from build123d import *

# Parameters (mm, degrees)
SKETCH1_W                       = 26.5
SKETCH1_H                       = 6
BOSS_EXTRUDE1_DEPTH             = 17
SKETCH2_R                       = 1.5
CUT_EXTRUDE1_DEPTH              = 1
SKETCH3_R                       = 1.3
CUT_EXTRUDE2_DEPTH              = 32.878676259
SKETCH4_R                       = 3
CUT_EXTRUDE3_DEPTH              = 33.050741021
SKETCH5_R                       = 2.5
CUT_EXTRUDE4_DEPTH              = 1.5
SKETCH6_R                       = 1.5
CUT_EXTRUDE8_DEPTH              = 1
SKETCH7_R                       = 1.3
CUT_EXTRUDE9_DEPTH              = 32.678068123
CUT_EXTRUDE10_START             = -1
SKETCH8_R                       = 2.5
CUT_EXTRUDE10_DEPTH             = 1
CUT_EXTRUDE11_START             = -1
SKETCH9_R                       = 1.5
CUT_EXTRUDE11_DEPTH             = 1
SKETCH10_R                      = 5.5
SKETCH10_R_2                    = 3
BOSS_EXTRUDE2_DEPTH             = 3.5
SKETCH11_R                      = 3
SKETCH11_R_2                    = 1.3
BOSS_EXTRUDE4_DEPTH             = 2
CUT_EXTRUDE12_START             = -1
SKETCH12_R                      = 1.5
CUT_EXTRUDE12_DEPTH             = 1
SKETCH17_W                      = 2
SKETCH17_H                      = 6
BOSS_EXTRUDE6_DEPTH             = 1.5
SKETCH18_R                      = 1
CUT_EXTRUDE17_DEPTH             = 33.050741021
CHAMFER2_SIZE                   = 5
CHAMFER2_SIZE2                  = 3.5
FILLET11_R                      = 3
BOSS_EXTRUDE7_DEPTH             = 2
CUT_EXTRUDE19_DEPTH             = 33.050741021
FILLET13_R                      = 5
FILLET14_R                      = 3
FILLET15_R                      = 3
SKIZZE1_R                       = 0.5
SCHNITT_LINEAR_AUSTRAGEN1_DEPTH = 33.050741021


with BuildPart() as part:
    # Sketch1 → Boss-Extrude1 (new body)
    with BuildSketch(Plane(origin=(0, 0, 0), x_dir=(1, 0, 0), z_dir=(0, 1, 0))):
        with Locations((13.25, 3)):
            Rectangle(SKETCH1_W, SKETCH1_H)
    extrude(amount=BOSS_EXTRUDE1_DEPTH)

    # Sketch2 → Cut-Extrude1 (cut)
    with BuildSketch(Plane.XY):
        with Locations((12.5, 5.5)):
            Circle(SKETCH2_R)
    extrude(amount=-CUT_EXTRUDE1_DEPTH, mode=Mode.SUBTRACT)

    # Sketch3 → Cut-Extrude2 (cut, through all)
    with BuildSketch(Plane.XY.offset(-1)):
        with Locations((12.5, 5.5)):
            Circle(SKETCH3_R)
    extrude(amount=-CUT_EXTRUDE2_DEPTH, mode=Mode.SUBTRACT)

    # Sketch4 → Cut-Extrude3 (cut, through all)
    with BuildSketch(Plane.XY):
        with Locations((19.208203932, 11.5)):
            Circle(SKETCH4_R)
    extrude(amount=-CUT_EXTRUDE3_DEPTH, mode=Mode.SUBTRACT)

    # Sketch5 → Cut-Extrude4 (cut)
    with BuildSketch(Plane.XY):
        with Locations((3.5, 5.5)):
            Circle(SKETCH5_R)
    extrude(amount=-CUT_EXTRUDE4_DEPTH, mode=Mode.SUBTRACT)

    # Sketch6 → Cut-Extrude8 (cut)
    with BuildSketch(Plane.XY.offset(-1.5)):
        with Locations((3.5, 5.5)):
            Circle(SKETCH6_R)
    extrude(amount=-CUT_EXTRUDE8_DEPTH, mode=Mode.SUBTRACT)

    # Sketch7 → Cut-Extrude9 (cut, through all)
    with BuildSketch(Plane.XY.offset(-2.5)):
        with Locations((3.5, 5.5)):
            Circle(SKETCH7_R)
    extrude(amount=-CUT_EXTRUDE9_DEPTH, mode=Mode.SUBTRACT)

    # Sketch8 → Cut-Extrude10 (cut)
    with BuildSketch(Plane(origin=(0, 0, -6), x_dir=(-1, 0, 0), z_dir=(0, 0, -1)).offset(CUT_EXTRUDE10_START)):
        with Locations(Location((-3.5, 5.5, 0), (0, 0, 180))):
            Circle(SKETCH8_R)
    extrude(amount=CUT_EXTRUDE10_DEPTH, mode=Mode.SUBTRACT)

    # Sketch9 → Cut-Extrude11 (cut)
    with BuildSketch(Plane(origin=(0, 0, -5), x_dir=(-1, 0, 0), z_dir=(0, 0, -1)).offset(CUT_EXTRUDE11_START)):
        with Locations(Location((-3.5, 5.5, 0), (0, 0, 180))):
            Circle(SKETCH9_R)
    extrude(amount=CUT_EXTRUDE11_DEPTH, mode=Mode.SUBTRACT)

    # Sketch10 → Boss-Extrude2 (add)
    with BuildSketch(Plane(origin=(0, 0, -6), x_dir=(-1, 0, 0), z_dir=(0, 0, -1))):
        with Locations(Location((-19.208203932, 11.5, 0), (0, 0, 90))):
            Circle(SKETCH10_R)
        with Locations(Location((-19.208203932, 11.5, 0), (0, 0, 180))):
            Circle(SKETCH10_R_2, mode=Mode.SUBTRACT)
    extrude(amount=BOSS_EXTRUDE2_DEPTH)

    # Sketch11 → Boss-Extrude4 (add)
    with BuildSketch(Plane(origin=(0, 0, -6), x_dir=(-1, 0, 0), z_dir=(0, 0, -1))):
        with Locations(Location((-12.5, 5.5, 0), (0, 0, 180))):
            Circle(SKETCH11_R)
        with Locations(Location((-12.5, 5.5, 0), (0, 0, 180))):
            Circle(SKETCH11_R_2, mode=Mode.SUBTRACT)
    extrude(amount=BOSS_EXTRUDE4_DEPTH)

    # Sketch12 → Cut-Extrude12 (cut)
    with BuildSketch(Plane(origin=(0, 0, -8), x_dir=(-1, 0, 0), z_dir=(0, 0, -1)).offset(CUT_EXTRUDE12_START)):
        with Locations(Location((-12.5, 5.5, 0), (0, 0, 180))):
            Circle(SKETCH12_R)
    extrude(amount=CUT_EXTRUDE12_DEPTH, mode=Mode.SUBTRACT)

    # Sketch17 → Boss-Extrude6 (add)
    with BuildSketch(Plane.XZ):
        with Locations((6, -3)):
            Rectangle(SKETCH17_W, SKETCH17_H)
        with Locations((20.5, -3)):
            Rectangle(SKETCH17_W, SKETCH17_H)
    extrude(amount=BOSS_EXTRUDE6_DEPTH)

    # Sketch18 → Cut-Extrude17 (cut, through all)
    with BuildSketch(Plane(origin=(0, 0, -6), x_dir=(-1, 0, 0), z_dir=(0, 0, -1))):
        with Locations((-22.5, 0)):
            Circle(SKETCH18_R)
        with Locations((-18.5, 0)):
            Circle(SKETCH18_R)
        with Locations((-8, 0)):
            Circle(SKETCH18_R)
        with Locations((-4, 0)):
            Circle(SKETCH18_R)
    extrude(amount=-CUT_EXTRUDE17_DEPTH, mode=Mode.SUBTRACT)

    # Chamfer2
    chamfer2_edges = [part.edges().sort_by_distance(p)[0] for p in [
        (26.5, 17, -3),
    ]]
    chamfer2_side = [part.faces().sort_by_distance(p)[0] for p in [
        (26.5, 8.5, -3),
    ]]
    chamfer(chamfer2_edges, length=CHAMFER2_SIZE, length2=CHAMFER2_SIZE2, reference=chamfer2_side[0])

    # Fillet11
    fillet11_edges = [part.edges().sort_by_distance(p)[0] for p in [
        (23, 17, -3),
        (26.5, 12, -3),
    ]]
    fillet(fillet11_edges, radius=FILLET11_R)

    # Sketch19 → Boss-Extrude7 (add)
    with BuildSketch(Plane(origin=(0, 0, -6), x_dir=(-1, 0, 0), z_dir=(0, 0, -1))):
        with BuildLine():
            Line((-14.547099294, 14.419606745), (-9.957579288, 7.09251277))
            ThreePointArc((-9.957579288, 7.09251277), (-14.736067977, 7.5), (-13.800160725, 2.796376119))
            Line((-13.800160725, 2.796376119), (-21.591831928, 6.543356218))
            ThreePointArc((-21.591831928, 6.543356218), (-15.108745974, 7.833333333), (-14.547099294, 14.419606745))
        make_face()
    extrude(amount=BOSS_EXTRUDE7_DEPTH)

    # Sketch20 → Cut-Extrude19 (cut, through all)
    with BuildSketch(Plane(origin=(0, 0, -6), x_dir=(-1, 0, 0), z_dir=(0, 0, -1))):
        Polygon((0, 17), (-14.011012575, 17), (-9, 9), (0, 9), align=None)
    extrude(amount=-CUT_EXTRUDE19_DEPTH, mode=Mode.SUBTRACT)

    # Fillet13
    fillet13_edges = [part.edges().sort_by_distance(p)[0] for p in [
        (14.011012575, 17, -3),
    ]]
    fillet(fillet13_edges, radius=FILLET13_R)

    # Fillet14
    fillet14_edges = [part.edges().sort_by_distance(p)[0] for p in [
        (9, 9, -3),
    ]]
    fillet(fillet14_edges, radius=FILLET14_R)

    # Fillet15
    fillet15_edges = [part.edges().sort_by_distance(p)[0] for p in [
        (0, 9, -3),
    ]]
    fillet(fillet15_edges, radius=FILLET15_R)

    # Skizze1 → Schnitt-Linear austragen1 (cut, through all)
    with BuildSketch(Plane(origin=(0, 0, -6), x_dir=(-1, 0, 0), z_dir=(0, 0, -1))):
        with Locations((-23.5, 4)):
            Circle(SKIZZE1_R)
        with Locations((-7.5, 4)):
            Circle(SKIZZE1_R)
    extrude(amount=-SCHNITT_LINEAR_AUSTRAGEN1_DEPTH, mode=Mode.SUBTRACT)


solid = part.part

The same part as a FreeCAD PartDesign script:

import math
import FreeCAD as App
import Part
import Sketcher
from FreeCAD import Vector


def edges_at(feature, points):
    """Names of the edges that pass closest to the given points."""
    edges = feature.Shape.Edges
    near = lambda p: min(range(len(edges)), key=lambda i: edges[i].distToShape(Part.Vertex(*p))[0])
    return sorted({f"Edge{near(p) + 1}" for p in points})


def add_polygon(sketch, points):
    """Adds a closed chain of lines whose ends are joined by coincident constraints."""
    first, n = sketch.GeometryCount, len(points)
    for a, b in zip(points, points[1:] + points[:1]):
        sketch.addGeometry(Part.LineSegment(App.Vector(*a, 0), App.Vector(*b, 0)), False)
    for i in range(n):
        sketch.addConstraint(Sketcher.Constraint("Coincident", first + i, 2, first + (i + 1) % n, 1))

doc = App.newDocument("Part")
params = doc.addObject("Spreadsheet::Sheet", "Params")
for row, (alias, value) in enumerate([
    ("sketch1_height", "6 mm"),
    ("sketch1_width", "26.5 mm"),
    ("pad1_length", "17 mm"),
    ("sketch2_diameter", "3 mm"),
    ("pocket1_length", "1 mm"),
    ("sketch3_diameter", "2.6 mm"),
    ("sketch4_diameter", "6 mm"),
    ("sketch5_diameter", "5 mm"),
    ("pocket4_length", "1.5 mm"),
    ("sketch6_diameter", "3 mm"),
    ("pocket5_length", "1 mm"),
    ("sketch7_diameter", "2.6 mm"),
    ("sketch8_diameter", "5 mm"),
    ("pocket7_length", "1 mm"),
    ("sketch9_diameter", "3 mm"),
    ("pocket8_length", "1 mm"),
    ("sketch10_diameter", "11 mm"),
    ("sketch10_diameter2", "6 mm"),
    ("pad2_length", "3.5 mm"),
    ("sketch11_diameter", "6 mm"),
    ("sketch11_diameter2", "2.6 mm"),
    ("pad3_length", "2 mm"),
    ("sketch12_diameter", "3 mm"),
    ("pocket9_length", "1 mm"),
    ("sketch13_width", "2 mm"),
    ("sketch13_height", "6 mm"),
    ("pad4_length", "1.5 mm"),
    ("sketch14_diameter", "2 mm"),
    ("chamfer_size", "5 mm"),
    ("chamfer_size2", "3.5 mm"),
    ("fillet_radius", "3 mm"),
    ("sketch15_radius", "3 mm"),
    ("sketch15_radius2", "5.5 mm"),
    ("pad5_length", "2 mm"),
    ("sketch16_width", "9 mm"),
    ("sketch16_height", "8 mm"),
    ("fillet2_radius", "5 mm"),
    ("fillet3_radius", "3 mm"),
    ("fillet4_radius", "3 mm"),
    ("sketch17_diameter", "1 mm"),
], start=1):
    params.set(f"A{row}", alias)
    params.set(f"B{row}", "=" + value)
    params.setAlias(f"B{row}", alias)

body = doc.addObject("PartDesign::Body", "Body")

# Sketch on XZ plane
sketch1 = body.newObject("Sketcher::SketchObject", "Sketch")
sketch1.AttachmentSupport = (doc.getObject("XZ_Plane"), [""])
sketch1.MapMode = "FlatFace"
add_polygon(sketch1, [(0, -6), (0, 0), (26.5, 0), (26.5, -6)])  # lines 0-3
sketch1.addConstraint([
    Sketcher.Constraint("Vertical", 0),
    Sketcher.Constraint("Horizontal", 1),
    Sketcher.Constraint("Vertical", 2),
    Sketcher.Constraint("Horizontal", 3),
    Sketcher.Constraint("Coincident", 0, 2, -1, 1),
    Sketcher.Constraint("DistanceY", 0, 1, 0, 2, 6.0),
    Sketcher.Constraint("DistanceX", 1, 1, 1, 2, 26.5),
])
sketch1.setExpression("Constraints[9]", "Params.sketch1_height")
sketch1.setExpression("Constraints[10]", "Params.sketch1_width")
pad1 = body.newObject("PartDesign::Pad", "Pad")
pad1.Profile = sketch1
pad1.setExpression("Length", "Params.pad1_length")
pad1.Reversed = True

# Sketch on XY plane
sketch2 = body.newObject("Sketcher::SketchObject", "Sketch001")
sketch2.AttachmentSupport = (doc.getObject("XY_Plane"), [""])
sketch2.MapMode = "FlatFace"
sketch2.addGeometry(Part.Circle(Vector(12.5, 5.5, 0), Vector(0, 0, 1), 1.5), False)
sketch2.addConstraint([
    Sketcher.Constraint("Diameter", 0, 3.0),
    Sketcher.Constraint("DistanceX", -1, 1, 0, 3, 12.5),
    Sketcher.Constraint("DistanceY", -1, 1, 0, 3, 5.5),
])
sketch2.setExpression("Constraints[0]", "Params.sketch2_diameter")
pocket1 = body.newObject("PartDesign::Pocket", "Pocket")
pocket1.Profile = sketch2
pocket1.setExpression("Length", "Params.pocket1_length")

# Sketch on XY plane
sketch3 = body.newObject("Sketcher::SketchObject", "Sketch002")
sketch3.AttachmentSupport = (doc.getObject("XY_Plane"), [""])
sketch3.MapMode = "FlatFace"
sketch3.AttachmentOffset = App.Placement(Vector(0, 0, -1), App.Rotation())
sketch3.addGeometry(Part.Circle(Vector(12.5, 5.5, 0), Vector(0, 0, 1), 1.3), False)
sketch3.addConstraint([
    Sketcher.Constraint("Diameter", 0, 2.6),
    Sketcher.Constraint("DistanceX", -1, 1, 0, 3, 12.5),
    Sketcher.Constraint("DistanceY", -1, 1, 0, 3, 5.5),
])
sketch3.setExpression("Constraints[0]", "Params.sketch3_diameter")
pocket2 = body.newObject("PartDesign::Pocket", "Pocket001")
pocket2.Profile = sketch3
pocket2.Type = "ThroughAll"

# Sketch on XY plane
sketch4 = body.newObject("Sketcher::SketchObject", "Sketch003")
sketch4.AttachmentSupport = (doc.getObject("XY_Plane"), [""])
sketch4.MapMode = "FlatFace"
sketch4.addGeometry(Part.Circle(Vector(19.208204, 11.5, 0), Vector(0, 0, 1), 3), False)
sketch4.addConstraint([
    Sketcher.Constraint("Diameter", 0, 6.0),
    Sketcher.Constraint("DistanceY", -1, 1, 0, 3, 11.5),
    Sketcher.Constraint("DistanceX", -1, 1, 0, 3, 19.208204),
])
sketch4.setExpression("Constraints[0]", "Params.sketch4_diameter")
pocket3 = body.newObject("PartDesign::Pocket", "Pocket002")
pocket3.Profile = sketch4
pocket3.Type = "ThroughAll"

# Sketch on XY plane
sketch5 = body.newObject("Sketcher::SketchObject", "Sketch004")
sketch5.AttachmentSupport = (doc.getObject("XY_Plane"), [""])
sketch5.MapMode = "FlatFace"
sketch5.addGeometry(Part.Circle(Vector(3.5, 5.5, 0), Vector(0, 0, 1), 2.5), False)
sketch5.addConstraint([
    Sketcher.Constraint("Diameter", 0, 5.0),
    Sketcher.Constraint("DistanceX", -1, 1, 0, 3, 3.5),
    Sketcher.Constraint("DistanceY", -1, 1, 0, 3, 5.5),
])
sketch5.setExpression("Constraints[0]", "Params.sketch5_diameter")
pocket4 = body.newObject("PartDesign::Pocket", "Pocket003")
pocket4.Profile = sketch5
pocket4.setExpression("Length", "Params.pocket4_length")

# Sketch on XY plane
sketch6 = body.newObject("Sketcher::SketchObject", "Sketch005")
sketch6.AttachmentSupport = (doc.getObject("XY_Plane"), [""])
sketch6.MapMode = "FlatFace"
sketch6.AttachmentOffset = App.Placement(Vector(0, 0, -1.5), App.Rotation())
sketch6.addGeometry(Part.Circle(Vector(3.5, 5.5, 0), Vector(0, 0, 1), 1.5), False)
sketch6.addConstraint([
    Sketcher.Constraint("Diameter", 0, 3.0),
    Sketcher.Constraint("DistanceX", -1, 1, 0, 3, 3.5),
    Sketcher.Constraint("DistanceY", -1, 1, 0, 3, 5.5),
])
sketch6.setExpression("Constraints[0]", "Params.sketch6_diameter")
pocket5 = body.newObject("PartDesign::Pocket", "Pocket004")
pocket5.Profile = sketch6
pocket5.setExpression("Length", "Params.pocket5_length")

# Sketch on XY plane
sketch7 = body.newObject("Sketcher::SketchObject", "Sketch006")
sketch7.AttachmentSupport = (doc.getObject("XY_Plane"), [""])
sketch7.MapMode = "FlatFace"
sketch7.AttachmentOffset = App.Placement(Vector(0, 0, -2.5), App.Rotation())
sketch7.addGeometry(Part.Circle(Vector(3.5, 5.5, 0), Vector(0, 0, 1), 1.3), False)
sketch7.addConstraint([
    Sketcher.Constraint("Diameter", 0, 2.6),
    Sketcher.Constraint("DistanceX", -1, 1, 0, 3, 3.5),
    Sketcher.Constraint("DistanceY", -1, 1, 0, 3, 5.5),
])
sketch7.setExpression("Constraints[0]", "Params.sketch7_diameter")
pocket6 = body.newObject("PartDesign::Pocket", "Pocket005")
pocket6.Profile = sketch7
pocket6.Type = "ThroughAll"

# Sketch on XY plane
sketch8 = body.newObject("Sketcher::SketchObject", "Sketch007")
sketch8.AttachmentSupport = (doc.getObject("XY_Plane"), [""])
sketch8.MapMode = "FlatFace"
sketch8.AttachmentOffset = App.Placement(Vector(0, 0, -5), App.Rotation())
sketch8.addGeometry(Part.Circle(Vector(3.5, 5.5, 0), Vector(0, 0, 1), 2.5), False)
sketch8.addConstraint([
    Sketcher.Constraint("Diameter", 0, 5.0),
    Sketcher.Constraint("DistanceX", -1, 1, 0, 3, 3.5),
    Sketcher.Constraint("DistanceY", -1, 1, 0, 3, 5.5),
])
sketch8.setExpression("Constraints[0]", "Params.sketch8_diameter")
pocket7 = body.newObject("PartDesign::Pocket", "Pocket006")
pocket7.Profile = sketch8
pocket7.setExpression("Length", "Params.pocket7_length")

# Sketch on XY plane
sketch9 = body.newObject("Sketcher::SketchObject", "Sketch008")
sketch9.AttachmentSupport = (doc.getObject("XY_Plane"), [""])
sketch9.MapMode = "FlatFace"
sketch9.AttachmentOffset = App.Placement(Vector(0, 0, -4), App.Rotation())
sketch9.addGeometry(Part.Circle(Vector(3.5, 5.5, 0), Vector(0, 0, 1), 1.5), False)
sketch9.addConstraint([
    Sketcher.Constraint("Diameter", 0, 3.0),
    Sketcher.Constraint("DistanceX", -1, 1, 0, 3, 3.5),
    Sketcher.Constraint("DistanceY", -1, 1, 0, 3, 5.5),
])
sketch9.setExpression("Constraints[0]", "Params.sketch9_diameter")
pocket8 = body.newObject("PartDesign::Pocket", "Pocket007")
pocket8.Profile = sketch9
pocket8.setExpression("Length", "Params.pocket8_length")

# Sketch on XY plane
sketch10 = body.newObject("Sketcher::SketchObject", "Sketch009")
sketch10.AttachmentSupport = (doc.getObject("XY_Plane"), [""])
sketch10.MapMode = "FlatFace"
sketch10.AttachmentOffset = App.Placement(Vector(0, 0, -6), App.Rotation())
sketch10.addGeometry([
    Part.Circle(Vector(19.208204, 11.5, 0), Vector(0, 0, 1), 5.5),
    Part.Circle(Vector(19.208204, 11.5, 0), Vector(0, 0, 1), 3),
], False)
sketch10.addConstraint([
    Sketcher.Constraint("Coincident", 1, 3, 0, 3),
    Sketcher.Constraint("Diameter", 0, 11.0),
    Sketcher.Constraint("Diameter", 1, 6.0),
    Sketcher.Constraint("DistanceY", -1, 1, 0, 3, 11.5),
    Sketcher.Constraint("DistanceX", -1, 1, 0, 3, 19.208204),
])
sketch10.setExpression("Constraints[1]", "Params.sketch10_diameter")
sketch10.setExpression("Constraints[2]", "Params.sketch10_diameter2")
pad2 = body.newObject("PartDesign::Pad", "Pad001")
pad2.Profile = sketch10
pad2.setExpression("Length", "Params.pad2_length")
pad2.Reversed = True

# Sketch on XY plane
sketch11 = body.newObject("Sketcher::SketchObject", "Sketch010")
sketch11.AttachmentSupport = (doc.getObject("XY_Plane"), [""])
sketch11.MapMode = "FlatFace"
sketch11.AttachmentOffset = App.Placement(Vector(0, 0, -6), App.Rotation())
sketch11.addGeometry([
    Part.Circle(Vector(12.5, 5.5, 0), Vector(0, 0, 1), 3),
    Part.Circle(Vector(12.5, 5.5, 0), Vector(0, 0, 1), 1.3),
], False)
sketch11.addConstraint([
    Sketcher.Constraint("Coincident", 1, 3, 0, 3),
    Sketcher.Constraint("Diameter", 0, 6.0),
    Sketcher.Constraint("Diameter", 1, 2.6),
    Sketcher.Constraint("DistanceX", -1, 1, 0, 3, 12.5),
    Sketcher.Constraint("DistanceY", -1, 1, 0, 3, 5.5),
])
sketch11.setExpression("Constraints[1]", "Params.sketch11_diameter")
sketch11.setExpression("Constraints[2]", "Params.sketch11_diameter2")
pad3 = body.newObject("PartDesign::Pad", "Pad002")
pad3.Profile = sketch11
pad3.setExpression("Length", "Params.pad3_length")
pad3.Reversed = True

# Sketch on XY plane
sketch12 = body.newObject("Sketcher::SketchObject", "Sketch011")
sketch12.AttachmentSupport = (doc.getObject("XY_Plane"), [""])
sketch12.MapMode = "FlatFace"
sketch12.AttachmentOffset = App.Placement(Vector(0, 0, -7), App.Rotation())
sketch12.addGeometry(Part.Circle(Vector(12.5, 5.5, 0), Vector(0, 0, 1), 1.5), False)
sketch12.addConstraint([
    Sketcher.Constraint("Diameter", 0, 3.0),
    Sketcher.Constraint("DistanceX", -1, 1, 0, 3, 12.5),
    Sketcher.Constraint("DistanceY", -1, 1, 0, 3, 5.5),
])
sketch12.setExpression("Constraints[0]", "Params.sketch12_diameter")
pocket9 = body.newObject("PartDesign::Pocket", "Pocket008")
pocket9.Profile = sketch12
pocket9.setExpression("Length", "Params.pocket9_length")

# Sketch on XZ plane
sketch13 = body.newObject("Sketcher::SketchObject", "Sketch012")
sketch13.AttachmentSupport = (doc.getObject("XZ_Plane"), [""])
sketch13.MapMode = "FlatFace"
add_polygon(sketch13, [(5, 0), (5, -6), (7, -6), (7, 0)])  # lines 0-3
add_polygon(sketch13, [(19.5, 0), (19.5, -6), (21.5, -6), (21.5, 0)])  # lines 4-7
sketch13.addConstraint([
    Sketcher.Constraint("Vertical", 0),
    Sketcher.Constraint("Horizontal", 1),
    Sketcher.Constraint("Vertical", 2),
    Sketcher.Constraint("Horizontal", 3),
    Sketcher.Constraint("Vertical", 4),
    Sketcher.Constraint("Horizontal", 5),
    Sketcher.Constraint("Vertical", 6),
    Sketcher.Constraint("Horizontal", 7),
    Sketcher.Constraint("PointOnObject", 2, 2, -1),
    Sketcher.Constraint("PointOnObject", 6, 2, -1),
    Sketcher.Constraint("Horizontal", 1, 2, 4, 2),
    Sketcher.Constraint("Equal", 3, 5),
    Sketcher.Constraint("DistanceX", 1, 1, 1, 2, 2.0),
    Sketcher.Constraint("DistanceY", 0, 2, 0, 1, 6.0),
    Sketcher.Constraint("DistanceX", -1, 1, 0, 2, 5.0),
    Sketcher.Constraint("DistanceX", -1, 1, 4, 2, 19.5),
])
sketch13.setExpression("Constraints[20]", "Params.sketch13_width")
sketch13.setExpression("Constraints[21]", "Params.sketch13_height")
pad4 = body.newObject("PartDesign::Pad", "Pad003")
pad4.Profile = sketch13
pad4.setExpression("Length", "Params.pad4_length")

# Sketch on XY plane
sketch14 = body.newObject("Sketcher::SketchObject", "Sketch013")
sketch14.AttachmentSupport = (doc.getObject("XY_Plane"), [""])
sketch14.MapMode = "FlatFace"
sketch14.AttachmentOffset = App.Placement(Vector(0, 0, -6), App.Rotation())
sketch14.addGeometry([
    Part.Circle(Vector(22.5, 0, 0), Vector(0, 0, 1), 1),
    Part.Circle(Vector(18.5, 0, 0), Vector(0, 0, 1), 1),
    Part.Circle(Vector(8, 0, 0), Vector(0, 0, 1), 1),
    Part.Circle(Vector(4, 0, 0), Vector(0, 0, 1), 1),
], False)
sketch14.addConstraint([
    Sketcher.Constraint("Equal", 0, 1),
    Sketcher.Constraint("Equal", 1, 2),
    Sketcher.Constraint("Equal", 2, 3),
    Sketcher.Constraint("PointOnObject", 0, 3, -1),
    Sketcher.Constraint("PointOnObject", 1, 3, -1),
    Sketcher.Constraint("PointOnObject", 2, 3, -1),
    Sketcher.Constraint("PointOnObject", 3, 3, -1),
    Sketcher.Constraint("Diameter", 0, 2.0),
    Sketcher.Constraint("DistanceX", -1, 1, 2, 3, 8.0),
    Sketcher.Constraint("DistanceX", -1, 1, 3, 3, 4.0),
    Sketcher.Constraint("DistanceX", 1, 3, 0, 3, 4.0),
    Sketcher.Constraint("DistanceX", -1, 1, 0, 3, 22.5),
])
sketch14.setExpression("Constraints[7]", "Params.sketch14_diameter")
pocket10 = body.newObject("PartDesign::Pocket", "Pocket009")
pocket10.Profile = sketch14
pocket10.Type = "ThroughAll"
pocket10.Reversed = True
doc.recompute()

chamfer = body.newObject("PartDesign::Chamfer", "Chamfer")
chamfer.Base = (pocket10, edges_at(pocket10, [(26.5, 17, -3)]))
chamfer.ChamferType = "Two distances"
chamfer.setExpression("Size", "Params.chamfer_size")
chamfer.setExpression("Size2", "Params.chamfer_size2")
doc.recompute()

fillet = body.newObject("PartDesign::Fillet", "Fillet")
fillet.Base = (chamfer, edges_at(chamfer, [(23, 17, -3), (26.5, 12, -3)]))
fillet.setExpression("Radius", "Params.fillet_radius")

# Sketch on XY plane
sketch15 = body.newObject("Sketcher::SketchObject", "Sketch014")
sketch15.AttachmentSupport = (doc.getObject("XY_Plane"), [""])
sketch15.MapMode = "FlatFace"
sketch15.AttachmentOffset = App.Placement(Vector(0, 0, -6), App.Rotation())
sketch15.addGeometry([
    Part.LineSegment(Vector(9.957579, 7.092513, 0), Vector(14.547099, 14.419607, 0)),
    Part.ArcOfCircle(Part.Circle(Vector(19.208204, 11.5, 0), Vector(0, 0, 1), 5.5), math.radians(147.937935), math.radians(295.682695)),
    Part.LineSegment(Vector(21.591832, 6.543356, 0), Vector(13.800161, 2.796376, 0)),
    Part.ArcOfCircle(Part.Circle(Vector(12.5, 5.5, 0), Vector(0, 0, 1), 3), math.radians(-64.317305), math.radians(147.937935)),
], False)
sketch15.addConstraint([
    Sketcher.Constraint("Tangent", 0, 2, 1, 1),
    Sketcher.Constraint("Tangent", 1, 2, 2, 1),
    Sketcher.Constraint("Tangent", 2, 2, 3, 1),
    Sketcher.Constraint("Tangent", 3, 2, 0, 1),
    Sketcher.Constraint("Radius", 3, 3.0),
    Sketcher.Constraint("Radius", 1, 5.5),
    Sketcher.Constraint("DistanceY", 3, 3, 1, 3, 6.0),
    Sketcher.Constraint("DistanceY", -1, 1, 1, 3, 11.5),
    Sketcher.Constraint("DistanceX", -1, 1, 3, 3, 12.5),
    Sketcher.Constraint("DistanceX", -1, 1, 0, 2, 14.547099),
])
sketch15.setExpression("Constraints[4]", "Params.sketch15_radius")
sketch15.setExpression("Constraints[5]", "Params.sketch15_radius2")
pad5 = body.newObject("PartDesign::Pad", "Pad004")
pad5.Profile = sketch15
pad5.setExpression("Length", "Params.pad5_length")
pad5.Reversed = True

# Sketch on XY plane
sketch16 = body.newObject("Sketcher::SketchObject", "Sketch015")
sketch16.AttachmentSupport = (doc.getObject("XY_Plane"), [""])
sketch16.MapMode = "FlatFace"
sketch16.AttachmentOffset = App.Placement(Vector(0, 0, -6), App.Rotation())
add_polygon(sketch16, [(0, 17), (14.011013, 17), (9, 9), (0, 9)])  # lines 0-3
sketch16.addConstraint([
    Sketcher.Constraint("Horizontal", 0),
    Sketcher.Constraint("Horizontal", 2),
    Sketcher.Constraint("Vertical", 3),
    Sketcher.Constraint("PointOnObject", 2, 2, -2),
    Sketcher.Constraint("DistanceX", 2, 2, 2, 1, 9.0),
    Sketcher.Constraint("DistanceY", 3, 1, 3, 2, 8.0),
    Sketcher.Constraint("DistanceY", -1, 1, 0, 2, 17.0),
    Sketcher.Constraint("DistanceX", 0, 1, 0, 2, 14.011013),
])
sketch16.setExpression("Constraints[8]", "Params.sketch16_width")
sketch16.setExpression("Constraints[9]", "Params.sketch16_height")
pocket11 = body.newObject("PartDesign::Pocket", "Pocket010")
pocket11.Profile = sketch16
pocket11.Type = "ThroughAll"
pocket11.Reversed = True
doc.recompute()

fillet2 = body.newObject("PartDesign::Fillet", "Fillet001")
fillet2.Base = (pocket11, edges_at(pocket11, [(14.011, 17, -3)]))
fillet2.setExpression("Radius", "Params.fillet2_radius")
doc.recompute()

fillet3 = body.newObject("PartDesign::Fillet", "Fillet002")
fillet3.Base = (fillet2, edges_at(fillet2, [(9, 9, -3)]))
fillet3.setExpression("Radius", "Params.fillet3_radius")
doc.recompute()

fillet4 = body.newObject("PartDesign::Fillet", "Fillet003")
fillet4.Base = (fillet3, edges_at(fillet3, [(0, 9, -3)]))
fillet4.setExpression("Radius", "Params.fillet4_radius")

# Sketch on XY plane
sketch17 = body.newObject("Sketcher::SketchObject", "Sketch016")
sketch17.AttachmentSupport = (doc.getObject("XY_Plane"), [""])
sketch17.MapMode = "FlatFace"
sketch17.AttachmentOffset = App.Placement(Vector(0, 0, -6), App.Rotation())
sketch17.addGeometry([
    Part.Circle(Vector(23.5, 4, 0), Vector(0, 0, 1), 0.5),
    Part.Circle(Vector(7.5, 4, 0), Vector(0, 0, 1), 0.5),
], False)
sketch17.addConstraint([
    Sketcher.Constraint("Equal", 0, 1),
    Sketcher.Constraint("Horizontal", 0, 3, 1, 3),
    Sketcher.Constraint("Diameter", 0, 1.0),
    Sketcher.Constraint("DistanceY", -1, 1, 0, 3, 4.0),
    Sketcher.Constraint("DistanceX", 1, 3, 0, 3, 16.0),
    Sketcher.Constraint("DistanceX", -1, 1, 0, 3, 23.5),
])
sketch17.setExpression("Constraints[2]", "Params.sketch17_diameter")
pocket12 = body.newObject("PartDesign::Pocket", "Pocket011")
pocket12.Profile = sketch17
pocket12.Type = "ThroughAll"
pocket12.Reversed = True

doc.recompute()
